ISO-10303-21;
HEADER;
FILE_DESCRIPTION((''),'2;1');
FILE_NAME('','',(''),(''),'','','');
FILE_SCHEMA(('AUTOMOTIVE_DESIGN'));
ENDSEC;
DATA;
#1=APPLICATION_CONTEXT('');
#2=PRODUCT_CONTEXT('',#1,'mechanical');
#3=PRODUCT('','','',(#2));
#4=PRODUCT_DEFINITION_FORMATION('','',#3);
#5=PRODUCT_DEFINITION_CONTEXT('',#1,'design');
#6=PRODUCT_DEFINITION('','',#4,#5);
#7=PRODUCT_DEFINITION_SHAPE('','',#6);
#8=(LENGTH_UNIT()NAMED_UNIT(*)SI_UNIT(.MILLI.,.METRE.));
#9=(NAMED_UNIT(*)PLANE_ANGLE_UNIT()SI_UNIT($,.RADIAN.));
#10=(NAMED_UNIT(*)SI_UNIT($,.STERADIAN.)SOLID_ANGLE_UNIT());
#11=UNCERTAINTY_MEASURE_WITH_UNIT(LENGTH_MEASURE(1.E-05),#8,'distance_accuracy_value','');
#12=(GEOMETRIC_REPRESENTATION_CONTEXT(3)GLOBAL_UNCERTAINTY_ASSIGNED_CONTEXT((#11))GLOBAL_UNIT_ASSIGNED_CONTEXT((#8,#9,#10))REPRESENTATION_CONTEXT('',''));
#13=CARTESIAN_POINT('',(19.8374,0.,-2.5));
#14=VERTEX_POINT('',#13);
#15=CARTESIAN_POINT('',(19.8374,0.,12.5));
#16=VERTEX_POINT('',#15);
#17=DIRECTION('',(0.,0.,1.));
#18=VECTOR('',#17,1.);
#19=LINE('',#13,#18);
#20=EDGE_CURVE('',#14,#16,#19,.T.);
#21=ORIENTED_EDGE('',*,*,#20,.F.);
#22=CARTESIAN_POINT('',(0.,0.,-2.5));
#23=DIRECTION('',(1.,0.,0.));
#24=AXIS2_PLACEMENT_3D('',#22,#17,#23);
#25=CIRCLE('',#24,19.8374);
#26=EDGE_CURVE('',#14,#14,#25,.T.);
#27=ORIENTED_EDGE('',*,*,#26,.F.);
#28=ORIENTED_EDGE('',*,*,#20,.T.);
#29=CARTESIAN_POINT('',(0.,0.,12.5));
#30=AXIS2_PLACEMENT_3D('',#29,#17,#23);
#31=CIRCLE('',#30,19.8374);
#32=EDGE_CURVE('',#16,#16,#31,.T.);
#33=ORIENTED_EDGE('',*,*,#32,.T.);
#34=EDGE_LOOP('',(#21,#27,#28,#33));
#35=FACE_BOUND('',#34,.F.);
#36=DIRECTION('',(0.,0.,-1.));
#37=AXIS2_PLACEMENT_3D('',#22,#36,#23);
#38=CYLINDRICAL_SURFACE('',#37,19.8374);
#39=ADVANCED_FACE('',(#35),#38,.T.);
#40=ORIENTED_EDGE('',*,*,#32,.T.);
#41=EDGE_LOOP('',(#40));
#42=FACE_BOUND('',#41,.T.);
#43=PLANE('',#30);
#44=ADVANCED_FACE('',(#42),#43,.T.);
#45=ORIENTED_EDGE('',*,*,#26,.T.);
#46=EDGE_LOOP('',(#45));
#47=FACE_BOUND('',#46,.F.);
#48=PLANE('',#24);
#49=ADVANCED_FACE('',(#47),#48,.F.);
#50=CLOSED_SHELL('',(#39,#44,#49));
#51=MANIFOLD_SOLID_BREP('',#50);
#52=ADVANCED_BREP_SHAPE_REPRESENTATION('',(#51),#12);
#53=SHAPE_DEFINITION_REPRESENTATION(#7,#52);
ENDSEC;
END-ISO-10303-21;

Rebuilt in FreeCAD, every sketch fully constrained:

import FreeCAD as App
import Part
import Sketcher
Q = App.Units.Quantity

doc = App.newDocument("Part")
params = doc.addObject("Spreadsheet::Sheet", "Params")
for row, (alias, value) in enumerate([
    ("pad1_length", "15 mm"),
], start=1):
    params.set(f"A{row}", alias)
    params.set(f"B{row}", "=" + value)
    params.setAlias(f"B{row}", alias)

body = doc.addObject("PartDesign::Body", "Body")

# Sketch on XY plane
sketch1 = body.newObject("Sketcher::SketchObject", "Sketch")
sketch1.AttachmentSupport = (doc.getObject("XY_Plane"), [""])
sketch1.MapMode = "FlatFace"
sketch1.AttachmentOffset = App.Placement(App.Vector(0, 0, -2.5), App.Rotation())
sketch1.addGeometry(Part.Circle(App.Vector(0, 0, 0), App.Vector(0, 0, 1), 20), False)
sketch1.addConstraint(Sketcher.Constraint("Coincident", 0, 3, -1, 1))
sketch1.addConstraint(Sketcher.Constraint("Diameter", 0, Q("39.6748 mm")))
pad1 = body.newObject("PartDesign::Pad", "Pad")
pad1.Profile = sketch1
pad1.setExpression("Length", "Params.pad1_length")

doc.recompute()
